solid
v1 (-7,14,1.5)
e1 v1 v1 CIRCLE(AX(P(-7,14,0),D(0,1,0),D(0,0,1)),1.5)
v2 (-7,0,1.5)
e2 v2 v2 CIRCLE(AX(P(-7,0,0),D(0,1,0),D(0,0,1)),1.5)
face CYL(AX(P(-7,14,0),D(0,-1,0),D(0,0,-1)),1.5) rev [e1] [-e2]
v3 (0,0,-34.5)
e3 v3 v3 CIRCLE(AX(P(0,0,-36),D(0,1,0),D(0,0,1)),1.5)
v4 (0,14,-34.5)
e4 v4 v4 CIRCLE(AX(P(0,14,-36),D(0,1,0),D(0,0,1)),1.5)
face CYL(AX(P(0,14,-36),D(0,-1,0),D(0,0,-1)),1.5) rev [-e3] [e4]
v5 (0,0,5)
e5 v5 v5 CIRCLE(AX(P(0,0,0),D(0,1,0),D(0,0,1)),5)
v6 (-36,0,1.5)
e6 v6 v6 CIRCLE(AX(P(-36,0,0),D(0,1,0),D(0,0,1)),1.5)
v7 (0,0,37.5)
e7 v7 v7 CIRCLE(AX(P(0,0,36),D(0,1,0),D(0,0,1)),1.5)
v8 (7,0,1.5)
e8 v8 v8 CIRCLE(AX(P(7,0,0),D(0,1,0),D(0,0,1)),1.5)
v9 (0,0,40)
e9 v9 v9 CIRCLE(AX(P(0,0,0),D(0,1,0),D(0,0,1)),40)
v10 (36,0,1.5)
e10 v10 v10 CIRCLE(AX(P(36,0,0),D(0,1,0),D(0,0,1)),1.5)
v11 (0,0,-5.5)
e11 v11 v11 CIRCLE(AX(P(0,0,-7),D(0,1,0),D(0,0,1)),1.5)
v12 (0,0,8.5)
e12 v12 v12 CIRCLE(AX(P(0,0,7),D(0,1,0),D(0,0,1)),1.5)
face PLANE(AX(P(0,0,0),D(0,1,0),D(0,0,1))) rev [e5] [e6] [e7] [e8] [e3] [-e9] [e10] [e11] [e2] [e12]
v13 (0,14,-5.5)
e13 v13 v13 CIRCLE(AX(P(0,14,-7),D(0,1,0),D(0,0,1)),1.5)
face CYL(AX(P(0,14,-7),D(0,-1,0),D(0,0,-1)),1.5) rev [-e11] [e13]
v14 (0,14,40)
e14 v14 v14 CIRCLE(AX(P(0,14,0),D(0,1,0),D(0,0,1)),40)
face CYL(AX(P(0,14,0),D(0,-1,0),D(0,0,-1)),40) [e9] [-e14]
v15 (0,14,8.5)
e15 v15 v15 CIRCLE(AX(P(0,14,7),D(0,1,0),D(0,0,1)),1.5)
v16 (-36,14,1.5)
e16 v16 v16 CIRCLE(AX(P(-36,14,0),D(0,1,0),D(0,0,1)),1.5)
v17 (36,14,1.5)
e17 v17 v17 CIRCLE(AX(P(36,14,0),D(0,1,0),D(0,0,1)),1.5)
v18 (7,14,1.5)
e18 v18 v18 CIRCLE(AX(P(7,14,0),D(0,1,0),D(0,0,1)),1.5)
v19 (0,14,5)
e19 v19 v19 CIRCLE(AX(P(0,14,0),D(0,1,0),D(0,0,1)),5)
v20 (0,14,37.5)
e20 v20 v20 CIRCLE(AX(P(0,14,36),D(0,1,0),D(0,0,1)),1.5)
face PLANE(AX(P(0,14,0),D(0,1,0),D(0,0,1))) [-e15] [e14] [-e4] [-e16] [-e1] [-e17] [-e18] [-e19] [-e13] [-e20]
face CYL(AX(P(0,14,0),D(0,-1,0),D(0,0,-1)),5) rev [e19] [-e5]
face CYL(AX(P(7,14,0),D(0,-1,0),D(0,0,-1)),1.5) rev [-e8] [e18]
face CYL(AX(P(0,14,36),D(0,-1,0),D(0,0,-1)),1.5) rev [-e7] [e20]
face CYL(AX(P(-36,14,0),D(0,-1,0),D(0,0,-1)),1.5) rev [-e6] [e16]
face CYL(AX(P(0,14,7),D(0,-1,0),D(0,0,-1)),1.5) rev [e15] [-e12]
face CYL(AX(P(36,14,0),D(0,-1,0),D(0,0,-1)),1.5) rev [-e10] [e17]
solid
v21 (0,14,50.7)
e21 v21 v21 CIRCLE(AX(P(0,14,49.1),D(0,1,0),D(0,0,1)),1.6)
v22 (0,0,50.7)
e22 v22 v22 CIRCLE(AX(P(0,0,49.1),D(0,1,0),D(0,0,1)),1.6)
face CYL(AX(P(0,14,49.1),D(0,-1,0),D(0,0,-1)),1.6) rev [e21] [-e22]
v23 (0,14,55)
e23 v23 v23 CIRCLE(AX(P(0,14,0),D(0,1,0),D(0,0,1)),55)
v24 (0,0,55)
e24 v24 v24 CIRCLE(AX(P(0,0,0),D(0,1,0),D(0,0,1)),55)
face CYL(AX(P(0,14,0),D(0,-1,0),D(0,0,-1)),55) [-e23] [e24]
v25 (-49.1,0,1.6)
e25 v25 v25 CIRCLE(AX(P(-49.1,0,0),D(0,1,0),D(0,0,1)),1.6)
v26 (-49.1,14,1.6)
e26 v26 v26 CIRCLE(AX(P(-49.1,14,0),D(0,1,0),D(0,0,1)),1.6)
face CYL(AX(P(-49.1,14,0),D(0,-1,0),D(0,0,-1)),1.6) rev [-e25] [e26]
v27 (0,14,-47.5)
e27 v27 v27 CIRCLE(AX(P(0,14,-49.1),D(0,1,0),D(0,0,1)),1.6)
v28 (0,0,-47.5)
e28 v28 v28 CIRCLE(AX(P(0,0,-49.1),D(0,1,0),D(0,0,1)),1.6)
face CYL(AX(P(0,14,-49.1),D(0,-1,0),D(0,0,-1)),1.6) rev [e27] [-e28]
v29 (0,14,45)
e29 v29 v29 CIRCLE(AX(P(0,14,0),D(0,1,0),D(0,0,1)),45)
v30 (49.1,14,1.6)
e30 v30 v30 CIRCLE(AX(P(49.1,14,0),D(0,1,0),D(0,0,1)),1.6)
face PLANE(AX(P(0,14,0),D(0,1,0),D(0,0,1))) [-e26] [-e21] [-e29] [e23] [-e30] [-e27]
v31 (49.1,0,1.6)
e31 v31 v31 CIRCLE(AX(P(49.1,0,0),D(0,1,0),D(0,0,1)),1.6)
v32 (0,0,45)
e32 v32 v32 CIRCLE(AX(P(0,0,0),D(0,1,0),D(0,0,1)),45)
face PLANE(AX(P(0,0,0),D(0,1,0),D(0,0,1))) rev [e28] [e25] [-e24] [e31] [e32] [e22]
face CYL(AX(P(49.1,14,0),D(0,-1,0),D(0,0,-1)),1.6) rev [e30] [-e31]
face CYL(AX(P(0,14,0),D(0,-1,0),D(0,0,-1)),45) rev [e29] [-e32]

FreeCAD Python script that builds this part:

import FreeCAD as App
import Part
import Sketcher
Q = App.Units.Quantity

doc = App.newDocument("Part")
body = doc.addObject("PartDesign::Body", "Body")

# Sketch on XZ plane
sketch1 = body.newObject("Sketcher::SketchObject", "Sketch")
sketch1.AttachmentSupport = (doc.getObject("XZ_Plane"), [""])
sketch1.MapMode = "FlatFace"
sketch1.addGeometry([
    Part.Circle(App.Vector(0, 0, 0), App.Vector(0, 0, 1), 55),  # 0
    Part.Circle(App.Vector(0, -49.1, 0), App.Vector(0, 0, 1), 1.6),  # 1
    Part.Circle(App.Vector(-49.1, 0, 0), App.Vector(0, 0, 1), 1.6),  # 2
    Part.Circle(App.Vector(49.1, 0, 0), App.Vector(0, 0, 1), 1.6),  # 3
    Part.Circle(App.Vector(0, 0, 0), App.Vector(0, 0, 1), 45),  # 4
    Part.Circle(App.Vector(0, 49.1, 0), App.Vector(0, 0, 1), 1.6),  # 5
], False)
sketch1.addConstraint([
    Sketcher.Constraint("Coincident", 0, 3, -1, 1),
    Sketcher.Constraint("Coincident", 4, 3, -1, 1),
    Sketcher.Constraint("Equal", 1, 2),
    Sketcher.Constraint("Equal", 2, 3),
    Sketcher.Constraint("Equal", 3, 5),
    Sketcher.Constraint("Symmetric", 2, 3, 3, 3, -1, 1),
    Sketcher.Constraint("Symmetric", 1, 3, 5, 3, -1, 1),
    Sketcher.Constraint("PointOnObject", 1, 3, -2),
    Sketcher.Constraint("PointOnObject", 2, 3, -1),
    Sketcher.Constraint("Diameter", 0, Q("110 mm")),
    Sketcher.Constraint("Diameter", 4, Q("90 mm")),
    Sketcher.Constraint("Diameter", 1, Q("3.2 mm")),
    Sketcher.Constraint("DistanceY", 1, 3, -1, 1, Q("49.1 mm")),
    Sketcher.Constraint("DistanceX", 2, 3, -1, 1, Q("49.1 mm")),
])
pad1 = body.newObject("PartDesign::Pad", "Pad")
pad1.Profile = sketch1
pad1.Length = 14
pad1.Reversed = True
body2 = doc.addObject("PartDesign::Body", "Body001")

# Sketch on XZ plane
sketch2 = body2.newObject("Sketcher::SketchObject", "Sketch001")
sketch2.AttachmentSupport = (doc.getObject("XZ_Plane001"), [""])
sketch2.MapMode = "FlatFace"
sketch2.addGeometry([
    Part.Circle(App.Vector(0, 0, 0), App.Vector(0, 0, 1), 40),  # 0
    Part.Circle(App.Vector(0, -36, 0), App.Vector(0, 0, 1), 1.5),  # 1
    Part.Circle(App.Vector(0, -7, 0), App.Vector(0, 0, 1), 1.5),  # 2
    Part.Circle(App.Vector(-36, 0, 0), App.Vector(0, 0, 1), 1.5),  # 3
    Part.Circle(App.Vector(-7, 0, 0), App.Vector(0, 0, 1), 1.5),  # 4
    Part.Circle(App.Vector(36, 0, 0), App.Vector(0, 0, 1), 1.5),  # 5
    Part.Circle(App.Vector(0, 0, 0), App.Vector(0, 0, 1), 5),  # 6
    Part.Circle(App.Vector(0, 7, 0), App.Vector(0, 0, 1), 1.5),  # 7
    Part.Circle(App.Vector(7, 0, 0), App.Vector(0, 0, 1), 1.5),  # 8
    Part.Circle(App.Vector(0, 36, 0), App.Vector(0, 0, 1), 1.5),  # 9
], False)
sketch2.addConstraint([
    Sketcher.Constraint("Coincident", 0, 3, -1, 1),
    Sketcher.Constraint("Coincident", 6, 3, -1, 1),
    Sketcher.Constraint("Equal", 1, 2),
    Sketcher.Constraint("Equal", 2, 3),
    Sketcher.Constraint("Equal", 3, 4),
    Sketcher.Constraint("Equal", 4, 5),
    Sketcher.Constraint("Equal", 5, 7),
    Sketcher.Constraint("Equal", 7, 8),
    Sketcher.Constraint("Equal", 8, 9),
    Sketcher.Constraint("Symmetric", 3, 3, 5, 3, -1, 1),
    Sketcher.Constraint("Symmetric", 2, 3, 7, 3, -1, 1),
    Sketcher.Constraint("Symmetric", 4, 3, 8, 3, -1, 1),
    Sketcher.Constraint("Symmetric", 1, 3, 9, 3, -1, 1),
    Sketcher.Constraint("PointOnObject", 1, 3, -2),
    Sketcher.Constraint("PointOnObject", 2, 3, -2),
    Sketcher.Constraint("PointOnObject", 3, 3, -1),
    Sketcher.Constraint("PointOnObject", 4, 3, -1),
    Sketcher.Constraint("Diameter", 0, Q("80 mm")),
    Sketcher.Constraint("Diameter", 1, Q("3 mm")),
    Sketcher.Constraint("Diameter", 6, Q("10 mm")),
    Sketcher.Constraint("DistanceY", 1, 3, -1, 1, Q("36 mm")),
    Sketcher.Constraint("DistanceY", 2, 3, -1, 1, Q("7 mm")),
    Sketcher.Constraint("DistanceX", 3, 3, -1, 1, Q("36 mm")),
    Sketcher.Constraint("DistanceX", 4, 3, -1, 1, Q("7 mm")),
])
pad2 = body2.newObject("PartDesign::Pad", "Pad001")
pad2.Profile = sketch2
pad2.Length = 14
pad2.Reversed = True

doc.recompute()
